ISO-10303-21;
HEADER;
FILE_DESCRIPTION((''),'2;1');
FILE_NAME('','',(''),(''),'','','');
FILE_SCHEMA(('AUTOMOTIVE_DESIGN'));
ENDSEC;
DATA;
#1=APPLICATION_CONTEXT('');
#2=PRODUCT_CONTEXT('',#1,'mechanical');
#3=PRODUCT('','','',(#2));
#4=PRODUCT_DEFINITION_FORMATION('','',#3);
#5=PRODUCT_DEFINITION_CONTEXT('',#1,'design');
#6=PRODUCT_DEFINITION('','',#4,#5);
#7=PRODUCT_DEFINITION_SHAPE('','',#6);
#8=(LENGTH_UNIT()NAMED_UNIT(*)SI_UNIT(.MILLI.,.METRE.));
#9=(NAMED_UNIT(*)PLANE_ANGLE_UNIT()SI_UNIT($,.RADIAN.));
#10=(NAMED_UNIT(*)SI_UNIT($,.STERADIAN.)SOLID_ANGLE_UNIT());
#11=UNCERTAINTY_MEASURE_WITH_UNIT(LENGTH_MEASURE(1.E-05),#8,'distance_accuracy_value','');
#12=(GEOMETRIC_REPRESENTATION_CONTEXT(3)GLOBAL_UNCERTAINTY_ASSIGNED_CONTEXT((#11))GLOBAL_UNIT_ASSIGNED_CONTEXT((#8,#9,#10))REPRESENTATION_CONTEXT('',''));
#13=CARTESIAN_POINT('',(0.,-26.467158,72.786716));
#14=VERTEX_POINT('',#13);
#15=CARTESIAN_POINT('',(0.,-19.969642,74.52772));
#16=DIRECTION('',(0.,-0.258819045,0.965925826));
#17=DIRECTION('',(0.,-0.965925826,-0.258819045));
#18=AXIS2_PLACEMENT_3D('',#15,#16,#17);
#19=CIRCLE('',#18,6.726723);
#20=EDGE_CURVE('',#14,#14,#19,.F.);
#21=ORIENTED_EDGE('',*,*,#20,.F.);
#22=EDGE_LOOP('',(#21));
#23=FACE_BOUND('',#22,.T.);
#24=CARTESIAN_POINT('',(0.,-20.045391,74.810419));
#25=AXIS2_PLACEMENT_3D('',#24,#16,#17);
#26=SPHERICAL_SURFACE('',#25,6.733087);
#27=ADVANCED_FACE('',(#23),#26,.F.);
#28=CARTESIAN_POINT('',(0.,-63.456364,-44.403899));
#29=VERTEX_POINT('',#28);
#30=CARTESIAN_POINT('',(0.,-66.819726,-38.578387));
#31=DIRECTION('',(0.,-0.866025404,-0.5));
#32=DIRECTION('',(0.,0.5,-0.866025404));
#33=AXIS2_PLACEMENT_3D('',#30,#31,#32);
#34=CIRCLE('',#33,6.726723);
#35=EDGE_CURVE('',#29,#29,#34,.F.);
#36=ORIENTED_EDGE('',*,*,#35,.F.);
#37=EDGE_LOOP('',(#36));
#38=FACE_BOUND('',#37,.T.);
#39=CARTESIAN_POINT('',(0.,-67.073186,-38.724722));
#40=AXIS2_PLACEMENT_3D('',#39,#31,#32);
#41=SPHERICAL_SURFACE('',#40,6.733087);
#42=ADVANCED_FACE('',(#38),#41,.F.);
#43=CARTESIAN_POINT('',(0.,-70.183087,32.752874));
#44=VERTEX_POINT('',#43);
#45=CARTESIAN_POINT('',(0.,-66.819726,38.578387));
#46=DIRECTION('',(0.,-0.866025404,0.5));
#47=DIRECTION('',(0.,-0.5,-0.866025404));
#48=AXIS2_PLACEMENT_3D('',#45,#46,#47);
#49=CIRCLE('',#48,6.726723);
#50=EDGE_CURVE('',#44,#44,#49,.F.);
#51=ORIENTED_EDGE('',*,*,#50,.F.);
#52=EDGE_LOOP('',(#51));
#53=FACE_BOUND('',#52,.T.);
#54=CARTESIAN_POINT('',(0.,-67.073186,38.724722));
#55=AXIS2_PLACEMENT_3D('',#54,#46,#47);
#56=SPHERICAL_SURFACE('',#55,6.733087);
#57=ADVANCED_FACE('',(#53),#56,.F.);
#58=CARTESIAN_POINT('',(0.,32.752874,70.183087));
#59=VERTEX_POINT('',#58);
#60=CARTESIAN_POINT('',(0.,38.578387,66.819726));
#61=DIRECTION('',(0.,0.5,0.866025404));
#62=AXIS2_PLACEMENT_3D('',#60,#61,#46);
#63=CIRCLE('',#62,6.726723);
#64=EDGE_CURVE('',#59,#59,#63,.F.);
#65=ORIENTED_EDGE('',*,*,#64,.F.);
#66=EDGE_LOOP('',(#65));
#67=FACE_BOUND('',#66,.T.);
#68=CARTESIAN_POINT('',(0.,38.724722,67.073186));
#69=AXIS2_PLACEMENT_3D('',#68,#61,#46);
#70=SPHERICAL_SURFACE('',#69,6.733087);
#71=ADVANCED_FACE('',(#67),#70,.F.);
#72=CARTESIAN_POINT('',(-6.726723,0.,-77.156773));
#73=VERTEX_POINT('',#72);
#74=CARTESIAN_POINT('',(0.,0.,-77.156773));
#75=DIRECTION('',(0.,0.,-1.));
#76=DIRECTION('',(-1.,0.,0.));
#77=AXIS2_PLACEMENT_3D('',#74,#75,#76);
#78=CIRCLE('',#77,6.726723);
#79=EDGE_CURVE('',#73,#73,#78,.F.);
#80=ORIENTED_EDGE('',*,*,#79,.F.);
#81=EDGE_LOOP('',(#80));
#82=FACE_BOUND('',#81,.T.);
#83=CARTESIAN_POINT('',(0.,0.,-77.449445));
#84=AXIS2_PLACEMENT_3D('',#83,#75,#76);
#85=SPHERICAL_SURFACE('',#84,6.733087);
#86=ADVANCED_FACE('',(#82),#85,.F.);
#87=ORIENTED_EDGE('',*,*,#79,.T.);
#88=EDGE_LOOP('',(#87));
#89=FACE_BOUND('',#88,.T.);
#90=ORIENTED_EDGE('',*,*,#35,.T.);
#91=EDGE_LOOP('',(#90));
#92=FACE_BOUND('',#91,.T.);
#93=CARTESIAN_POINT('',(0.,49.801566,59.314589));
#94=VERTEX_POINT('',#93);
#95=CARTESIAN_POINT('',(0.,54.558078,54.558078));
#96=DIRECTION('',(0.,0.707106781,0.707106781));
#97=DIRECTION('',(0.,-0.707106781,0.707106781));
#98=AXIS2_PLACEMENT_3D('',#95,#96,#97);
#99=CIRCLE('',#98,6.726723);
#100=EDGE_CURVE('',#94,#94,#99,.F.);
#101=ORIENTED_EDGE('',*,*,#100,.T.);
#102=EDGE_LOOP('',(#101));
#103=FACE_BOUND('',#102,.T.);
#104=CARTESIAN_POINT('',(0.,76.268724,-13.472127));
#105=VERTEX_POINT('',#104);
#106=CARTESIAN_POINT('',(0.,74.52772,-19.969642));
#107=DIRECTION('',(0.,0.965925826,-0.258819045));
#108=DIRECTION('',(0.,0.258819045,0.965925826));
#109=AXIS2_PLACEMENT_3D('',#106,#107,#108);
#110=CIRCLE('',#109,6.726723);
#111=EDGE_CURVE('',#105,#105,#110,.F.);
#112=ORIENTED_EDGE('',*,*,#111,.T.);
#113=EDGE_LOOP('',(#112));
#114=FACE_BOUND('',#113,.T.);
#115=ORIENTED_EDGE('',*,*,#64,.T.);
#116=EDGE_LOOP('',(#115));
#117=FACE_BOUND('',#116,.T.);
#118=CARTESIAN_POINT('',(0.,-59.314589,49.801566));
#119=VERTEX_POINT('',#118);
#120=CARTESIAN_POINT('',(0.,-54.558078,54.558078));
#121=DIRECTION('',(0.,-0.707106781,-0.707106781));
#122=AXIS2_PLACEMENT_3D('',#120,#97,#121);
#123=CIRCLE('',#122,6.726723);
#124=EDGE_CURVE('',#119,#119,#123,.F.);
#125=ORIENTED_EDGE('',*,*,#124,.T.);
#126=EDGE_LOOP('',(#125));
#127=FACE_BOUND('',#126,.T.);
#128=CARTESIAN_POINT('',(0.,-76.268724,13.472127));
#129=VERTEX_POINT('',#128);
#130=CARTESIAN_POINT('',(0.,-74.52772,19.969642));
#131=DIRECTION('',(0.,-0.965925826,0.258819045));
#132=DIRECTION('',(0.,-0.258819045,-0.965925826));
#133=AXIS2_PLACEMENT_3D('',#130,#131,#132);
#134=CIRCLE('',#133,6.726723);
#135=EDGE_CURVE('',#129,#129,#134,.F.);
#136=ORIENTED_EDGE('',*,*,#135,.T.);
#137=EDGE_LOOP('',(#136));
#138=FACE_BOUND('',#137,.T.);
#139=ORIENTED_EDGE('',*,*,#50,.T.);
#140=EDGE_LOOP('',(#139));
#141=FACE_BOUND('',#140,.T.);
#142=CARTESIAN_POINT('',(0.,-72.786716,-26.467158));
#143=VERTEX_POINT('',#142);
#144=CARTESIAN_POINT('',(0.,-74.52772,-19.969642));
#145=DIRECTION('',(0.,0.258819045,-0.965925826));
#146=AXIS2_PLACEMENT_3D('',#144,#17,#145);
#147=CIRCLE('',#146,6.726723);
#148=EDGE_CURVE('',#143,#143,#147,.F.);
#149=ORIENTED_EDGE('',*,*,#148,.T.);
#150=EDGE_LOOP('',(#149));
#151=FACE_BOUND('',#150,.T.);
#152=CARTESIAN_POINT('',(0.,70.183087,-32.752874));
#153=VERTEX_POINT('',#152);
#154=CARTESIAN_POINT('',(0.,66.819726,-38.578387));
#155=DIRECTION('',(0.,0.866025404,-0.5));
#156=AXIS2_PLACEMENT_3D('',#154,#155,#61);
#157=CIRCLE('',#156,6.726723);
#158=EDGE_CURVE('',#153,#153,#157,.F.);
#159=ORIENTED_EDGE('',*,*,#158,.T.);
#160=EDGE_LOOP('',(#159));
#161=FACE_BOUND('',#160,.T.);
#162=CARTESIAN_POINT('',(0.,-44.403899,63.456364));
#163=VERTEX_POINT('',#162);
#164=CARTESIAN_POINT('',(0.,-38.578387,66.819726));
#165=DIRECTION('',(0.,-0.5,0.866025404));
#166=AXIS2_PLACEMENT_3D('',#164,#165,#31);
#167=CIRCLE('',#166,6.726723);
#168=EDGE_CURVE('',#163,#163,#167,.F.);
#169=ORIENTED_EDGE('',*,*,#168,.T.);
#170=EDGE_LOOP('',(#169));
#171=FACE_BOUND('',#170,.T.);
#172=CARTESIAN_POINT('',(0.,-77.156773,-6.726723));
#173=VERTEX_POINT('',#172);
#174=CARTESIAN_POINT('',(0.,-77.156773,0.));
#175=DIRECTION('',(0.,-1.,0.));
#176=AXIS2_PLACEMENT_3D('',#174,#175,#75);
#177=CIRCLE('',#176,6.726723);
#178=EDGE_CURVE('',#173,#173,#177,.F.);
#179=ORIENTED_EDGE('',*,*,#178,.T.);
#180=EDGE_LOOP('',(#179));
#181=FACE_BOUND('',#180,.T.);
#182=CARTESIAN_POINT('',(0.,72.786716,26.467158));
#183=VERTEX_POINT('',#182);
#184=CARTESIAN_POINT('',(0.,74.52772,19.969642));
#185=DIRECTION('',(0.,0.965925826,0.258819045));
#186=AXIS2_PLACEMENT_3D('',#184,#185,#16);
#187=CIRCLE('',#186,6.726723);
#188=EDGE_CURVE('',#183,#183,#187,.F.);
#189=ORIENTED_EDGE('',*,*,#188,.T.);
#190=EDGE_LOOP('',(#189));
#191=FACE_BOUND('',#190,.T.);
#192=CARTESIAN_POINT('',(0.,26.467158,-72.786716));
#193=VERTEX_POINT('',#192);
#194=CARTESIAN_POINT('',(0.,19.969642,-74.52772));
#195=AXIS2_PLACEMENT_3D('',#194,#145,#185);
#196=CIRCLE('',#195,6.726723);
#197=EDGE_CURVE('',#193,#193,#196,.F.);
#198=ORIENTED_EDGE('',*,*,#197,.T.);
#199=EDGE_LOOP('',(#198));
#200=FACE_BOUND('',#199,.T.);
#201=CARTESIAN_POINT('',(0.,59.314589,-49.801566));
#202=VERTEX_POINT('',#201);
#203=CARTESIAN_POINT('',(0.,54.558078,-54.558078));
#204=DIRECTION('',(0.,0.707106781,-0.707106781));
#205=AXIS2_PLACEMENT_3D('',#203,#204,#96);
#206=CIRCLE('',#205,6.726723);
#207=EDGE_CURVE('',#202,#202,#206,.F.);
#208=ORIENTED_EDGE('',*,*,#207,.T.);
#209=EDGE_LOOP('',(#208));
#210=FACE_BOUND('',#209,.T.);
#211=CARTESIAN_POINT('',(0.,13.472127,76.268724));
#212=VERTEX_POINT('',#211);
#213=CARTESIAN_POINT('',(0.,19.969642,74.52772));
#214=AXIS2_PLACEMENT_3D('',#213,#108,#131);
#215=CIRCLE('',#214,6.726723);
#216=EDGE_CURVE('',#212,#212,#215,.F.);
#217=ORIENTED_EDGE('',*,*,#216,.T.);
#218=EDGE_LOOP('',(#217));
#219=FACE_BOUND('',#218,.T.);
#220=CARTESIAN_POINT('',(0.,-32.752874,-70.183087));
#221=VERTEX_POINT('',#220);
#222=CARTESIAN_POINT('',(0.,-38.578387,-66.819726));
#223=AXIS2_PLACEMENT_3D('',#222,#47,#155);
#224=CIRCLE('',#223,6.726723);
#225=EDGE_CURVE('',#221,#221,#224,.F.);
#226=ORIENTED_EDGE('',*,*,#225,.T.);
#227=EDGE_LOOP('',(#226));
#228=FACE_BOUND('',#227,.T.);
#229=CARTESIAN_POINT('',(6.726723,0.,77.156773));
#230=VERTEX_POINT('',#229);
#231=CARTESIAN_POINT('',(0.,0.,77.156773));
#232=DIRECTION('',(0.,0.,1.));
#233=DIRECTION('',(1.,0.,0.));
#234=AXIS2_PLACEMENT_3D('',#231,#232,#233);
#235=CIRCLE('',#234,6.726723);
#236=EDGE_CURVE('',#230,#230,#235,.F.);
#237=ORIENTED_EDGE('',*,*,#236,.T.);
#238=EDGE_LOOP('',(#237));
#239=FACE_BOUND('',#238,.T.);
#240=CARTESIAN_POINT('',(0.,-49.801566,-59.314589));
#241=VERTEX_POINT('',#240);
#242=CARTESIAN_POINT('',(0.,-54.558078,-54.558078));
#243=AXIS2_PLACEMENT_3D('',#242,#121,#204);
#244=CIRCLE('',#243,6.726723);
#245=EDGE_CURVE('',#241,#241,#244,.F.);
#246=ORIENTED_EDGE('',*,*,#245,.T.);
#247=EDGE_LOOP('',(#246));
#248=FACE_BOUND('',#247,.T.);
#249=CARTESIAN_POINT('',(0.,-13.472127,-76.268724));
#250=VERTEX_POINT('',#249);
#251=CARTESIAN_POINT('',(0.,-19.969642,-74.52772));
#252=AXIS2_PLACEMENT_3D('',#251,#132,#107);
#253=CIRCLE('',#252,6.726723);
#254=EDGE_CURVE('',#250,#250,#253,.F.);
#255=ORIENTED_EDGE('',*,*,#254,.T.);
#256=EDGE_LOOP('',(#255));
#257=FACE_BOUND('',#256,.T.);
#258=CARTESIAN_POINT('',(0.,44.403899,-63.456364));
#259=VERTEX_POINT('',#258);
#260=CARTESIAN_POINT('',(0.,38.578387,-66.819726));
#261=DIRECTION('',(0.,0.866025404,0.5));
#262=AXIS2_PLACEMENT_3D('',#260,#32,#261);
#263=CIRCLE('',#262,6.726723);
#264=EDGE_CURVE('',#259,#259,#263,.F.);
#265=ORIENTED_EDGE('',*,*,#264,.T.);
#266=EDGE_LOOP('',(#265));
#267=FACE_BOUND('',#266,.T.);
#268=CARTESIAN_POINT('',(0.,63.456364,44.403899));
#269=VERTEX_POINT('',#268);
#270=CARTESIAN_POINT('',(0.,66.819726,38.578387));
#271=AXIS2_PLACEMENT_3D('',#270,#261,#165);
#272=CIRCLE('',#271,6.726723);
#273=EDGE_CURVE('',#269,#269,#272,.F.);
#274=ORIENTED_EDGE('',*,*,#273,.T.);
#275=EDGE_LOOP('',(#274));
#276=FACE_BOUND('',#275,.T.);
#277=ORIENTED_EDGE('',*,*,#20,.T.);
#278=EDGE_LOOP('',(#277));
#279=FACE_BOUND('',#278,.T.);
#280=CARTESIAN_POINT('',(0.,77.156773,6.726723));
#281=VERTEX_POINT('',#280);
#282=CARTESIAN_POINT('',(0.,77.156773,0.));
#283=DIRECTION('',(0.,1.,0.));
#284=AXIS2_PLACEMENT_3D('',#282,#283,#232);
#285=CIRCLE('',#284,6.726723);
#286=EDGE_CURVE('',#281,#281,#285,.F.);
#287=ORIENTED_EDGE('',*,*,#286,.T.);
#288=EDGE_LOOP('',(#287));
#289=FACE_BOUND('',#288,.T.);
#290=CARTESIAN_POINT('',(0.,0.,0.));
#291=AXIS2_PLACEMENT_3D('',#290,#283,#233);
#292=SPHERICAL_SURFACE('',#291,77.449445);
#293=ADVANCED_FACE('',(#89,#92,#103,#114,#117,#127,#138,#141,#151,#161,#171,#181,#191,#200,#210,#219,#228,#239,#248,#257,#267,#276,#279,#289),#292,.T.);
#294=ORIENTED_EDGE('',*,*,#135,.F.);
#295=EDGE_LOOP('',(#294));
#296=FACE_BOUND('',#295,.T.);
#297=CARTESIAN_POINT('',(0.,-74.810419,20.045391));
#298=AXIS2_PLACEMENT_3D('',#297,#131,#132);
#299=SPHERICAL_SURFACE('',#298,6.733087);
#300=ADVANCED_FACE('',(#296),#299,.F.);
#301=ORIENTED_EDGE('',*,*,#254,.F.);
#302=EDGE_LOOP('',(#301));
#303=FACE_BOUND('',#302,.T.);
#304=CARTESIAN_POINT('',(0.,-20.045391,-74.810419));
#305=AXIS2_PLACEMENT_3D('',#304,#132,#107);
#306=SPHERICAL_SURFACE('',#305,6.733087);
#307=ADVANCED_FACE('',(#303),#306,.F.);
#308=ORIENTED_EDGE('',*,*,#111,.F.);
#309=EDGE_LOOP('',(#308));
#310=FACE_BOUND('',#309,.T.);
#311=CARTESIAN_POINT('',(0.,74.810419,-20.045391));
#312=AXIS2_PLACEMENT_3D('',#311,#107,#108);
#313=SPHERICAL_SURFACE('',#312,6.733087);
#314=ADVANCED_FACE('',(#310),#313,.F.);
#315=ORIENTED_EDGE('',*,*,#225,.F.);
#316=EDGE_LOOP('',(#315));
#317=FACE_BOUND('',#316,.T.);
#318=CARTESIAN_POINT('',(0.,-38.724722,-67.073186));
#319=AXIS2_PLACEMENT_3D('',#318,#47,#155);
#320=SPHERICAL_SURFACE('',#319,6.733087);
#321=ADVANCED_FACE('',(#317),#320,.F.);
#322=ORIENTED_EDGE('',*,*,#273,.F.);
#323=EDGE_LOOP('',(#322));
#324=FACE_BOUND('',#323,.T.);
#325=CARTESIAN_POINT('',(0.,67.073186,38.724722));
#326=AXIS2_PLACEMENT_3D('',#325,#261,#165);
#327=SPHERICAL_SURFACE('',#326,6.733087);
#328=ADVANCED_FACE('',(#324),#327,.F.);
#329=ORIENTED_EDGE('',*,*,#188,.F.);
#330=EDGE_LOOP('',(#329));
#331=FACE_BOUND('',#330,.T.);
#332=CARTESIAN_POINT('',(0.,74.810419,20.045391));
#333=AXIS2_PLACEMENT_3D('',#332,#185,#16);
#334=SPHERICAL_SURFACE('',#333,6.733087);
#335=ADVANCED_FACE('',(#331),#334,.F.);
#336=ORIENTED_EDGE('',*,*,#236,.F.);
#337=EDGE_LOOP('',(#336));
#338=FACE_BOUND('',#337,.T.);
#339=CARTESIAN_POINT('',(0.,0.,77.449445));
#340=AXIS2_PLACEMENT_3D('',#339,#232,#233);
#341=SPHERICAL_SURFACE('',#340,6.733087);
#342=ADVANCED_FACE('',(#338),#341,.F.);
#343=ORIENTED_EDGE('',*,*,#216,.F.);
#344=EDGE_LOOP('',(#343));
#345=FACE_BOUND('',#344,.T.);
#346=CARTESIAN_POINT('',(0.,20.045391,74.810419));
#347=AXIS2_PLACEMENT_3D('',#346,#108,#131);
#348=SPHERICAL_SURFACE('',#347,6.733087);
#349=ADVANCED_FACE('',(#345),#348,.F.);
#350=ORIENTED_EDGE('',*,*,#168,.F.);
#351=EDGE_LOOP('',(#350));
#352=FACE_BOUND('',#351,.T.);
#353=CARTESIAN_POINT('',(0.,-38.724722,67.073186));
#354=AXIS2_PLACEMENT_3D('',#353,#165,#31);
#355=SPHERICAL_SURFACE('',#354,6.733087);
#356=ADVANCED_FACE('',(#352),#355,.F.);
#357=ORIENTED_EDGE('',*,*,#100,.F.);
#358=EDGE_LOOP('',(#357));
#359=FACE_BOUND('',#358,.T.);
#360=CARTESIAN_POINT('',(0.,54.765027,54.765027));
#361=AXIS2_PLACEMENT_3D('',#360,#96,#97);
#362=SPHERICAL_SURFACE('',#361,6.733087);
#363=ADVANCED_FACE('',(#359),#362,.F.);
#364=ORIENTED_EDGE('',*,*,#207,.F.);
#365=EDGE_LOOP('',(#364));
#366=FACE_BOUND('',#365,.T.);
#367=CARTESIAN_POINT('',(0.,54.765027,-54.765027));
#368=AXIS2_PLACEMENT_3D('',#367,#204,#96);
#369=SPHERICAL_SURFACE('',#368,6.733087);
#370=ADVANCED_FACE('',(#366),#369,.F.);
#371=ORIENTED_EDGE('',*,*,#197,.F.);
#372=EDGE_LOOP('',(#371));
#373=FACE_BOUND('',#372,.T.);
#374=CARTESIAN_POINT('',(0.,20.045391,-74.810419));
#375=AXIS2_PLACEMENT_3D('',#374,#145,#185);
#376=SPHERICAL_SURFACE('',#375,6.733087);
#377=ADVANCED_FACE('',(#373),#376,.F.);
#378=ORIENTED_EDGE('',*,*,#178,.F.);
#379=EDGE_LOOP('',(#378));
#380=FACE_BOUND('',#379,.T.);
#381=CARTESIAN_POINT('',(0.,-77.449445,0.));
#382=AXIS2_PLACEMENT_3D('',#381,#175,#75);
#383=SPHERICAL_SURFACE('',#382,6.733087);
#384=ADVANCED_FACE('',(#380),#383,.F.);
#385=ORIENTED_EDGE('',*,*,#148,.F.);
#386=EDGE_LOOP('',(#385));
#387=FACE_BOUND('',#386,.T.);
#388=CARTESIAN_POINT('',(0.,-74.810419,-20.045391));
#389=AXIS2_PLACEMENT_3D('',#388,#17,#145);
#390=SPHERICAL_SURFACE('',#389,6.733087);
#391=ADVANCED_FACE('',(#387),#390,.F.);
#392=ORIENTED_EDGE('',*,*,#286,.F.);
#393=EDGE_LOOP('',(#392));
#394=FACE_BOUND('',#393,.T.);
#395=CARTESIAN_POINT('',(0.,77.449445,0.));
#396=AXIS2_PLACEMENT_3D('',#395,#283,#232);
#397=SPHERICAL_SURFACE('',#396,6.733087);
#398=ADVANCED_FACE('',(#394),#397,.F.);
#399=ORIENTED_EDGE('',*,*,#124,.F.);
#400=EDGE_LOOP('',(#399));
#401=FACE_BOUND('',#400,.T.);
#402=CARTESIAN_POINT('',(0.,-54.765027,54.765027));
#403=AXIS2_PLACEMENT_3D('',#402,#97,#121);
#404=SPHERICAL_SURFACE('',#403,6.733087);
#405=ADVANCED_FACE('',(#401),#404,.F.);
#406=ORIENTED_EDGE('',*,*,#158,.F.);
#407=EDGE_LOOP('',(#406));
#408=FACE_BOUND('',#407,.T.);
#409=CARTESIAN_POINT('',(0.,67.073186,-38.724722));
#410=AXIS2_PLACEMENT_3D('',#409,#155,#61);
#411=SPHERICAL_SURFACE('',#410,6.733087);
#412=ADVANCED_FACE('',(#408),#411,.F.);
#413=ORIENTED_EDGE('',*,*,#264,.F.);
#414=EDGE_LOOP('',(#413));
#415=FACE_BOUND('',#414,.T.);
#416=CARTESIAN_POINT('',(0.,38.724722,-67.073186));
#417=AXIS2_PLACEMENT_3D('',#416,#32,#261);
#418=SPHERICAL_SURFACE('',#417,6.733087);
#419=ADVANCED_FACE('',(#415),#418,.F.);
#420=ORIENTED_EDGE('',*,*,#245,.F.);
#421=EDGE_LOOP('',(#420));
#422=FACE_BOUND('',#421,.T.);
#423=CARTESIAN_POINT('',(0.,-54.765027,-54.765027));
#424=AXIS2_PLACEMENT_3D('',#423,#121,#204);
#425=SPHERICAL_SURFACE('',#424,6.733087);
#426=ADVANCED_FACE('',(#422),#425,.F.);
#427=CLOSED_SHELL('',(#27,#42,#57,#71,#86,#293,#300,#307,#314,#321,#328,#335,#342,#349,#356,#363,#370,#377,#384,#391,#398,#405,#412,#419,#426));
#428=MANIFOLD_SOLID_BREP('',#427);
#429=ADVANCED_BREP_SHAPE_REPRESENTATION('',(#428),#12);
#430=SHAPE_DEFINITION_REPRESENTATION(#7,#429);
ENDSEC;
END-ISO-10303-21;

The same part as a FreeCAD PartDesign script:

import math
import FreeCAD as App
import Part
import Sketcher
from FreeCAD import Vector

doc = App.newDocument("Part")
body = doc.addObject("PartDesign::Body", "Body")

# Sketch on XY plane
sketch1 = doc.addObject("Sketcher::SketchObject", "Sketch")
body.addObject(sketch1)
sketch1.AttachmentSupport = (doc.XY_Plane, [""])
sketch1.MapMode = "FlatFace"
sketch1.addGeometry(Part.LineSegment(Vector(0, 77.449445, 0), Vector(0, -77.449445, 0)), False)
sketch1.addGeometry(Part.ArcOfCircle(Part.Circle(Vector(0, 0, 0), Vector(0, 0, 1), 77.449445), math.radians(-90), math.radians(90)), False)
sketch1.addConstraint(Sketcher.Constraint("Coincident", 0, 1, 1, 2))
sketch1.addConstraint(Sketcher.Constraint("Coincident", 1, 1, 0, 2))
sketch1.addConstraint(Sketcher.Constraint("Vertical", 0))
sketch1.addConstraint(Sketcher.Constraint("Coincident", 1, 3, -1, 1))
sketch1.addConstraint(Sketcher.Constraint("PointOnObject", 0, 1, -2))
sketch1.addConstraint(Sketcher.Constraint("Radius", 1, 77.449445))
revolution = doc.addObject("PartDesign::Revolution", "Revolution")
body.addObject(revolution)
revolution.Profile = sketch1
revolution.ReferenceAxis = (sketch1, ["V_Axis"])
revolution.Angle = 360

# Sketch on XZ plane
sketch2 = doc.addObject("Sketcher::SketchObject", "Sketch001")
body.addObject(sketch2)
sketch2.AttachmentSupport = (doc.XZ_Plane, [""])
sketch2.MapMode = "FlatFace"
sketch2.addGeometry(Part.LineSegment(Vector(6.733087, -77.449445, 0), Vector(-6.733087, -77.449445, 0)), False)
sketch2.addGeometry(Part.ArcOfCircle(Part.Circle(Vector(0, -77.449445, 0), Vector(0, 0, 1), 6.733087), math.radians(0), math.radians(180)), False)
sketch2.addGeometry(Part.LineSegment(Vector(-6.733087, -77.449445, 0), Vector(6.733087, -77.449445, 0)), True)  # axis
sketch2.addConstraint(Sketcher.Constraint("Coincident", 0, 1, 1, 1))
sketch2.addConstraint(Sketcher.Constraint("Coincident", 1, 2, 0, 2))
sketch2.addConstraint(Sketcher.Constraint("Horizontal", 0))
sketch2.addConstraint(Sketcher.Constraint("Horizontal", 2))
sketch2.addConstraint(Sketcher.Constraint("Coincident", 2, 1, 1, 2))
sketch2.addConstraint(Sketcher.Constraint("PointOnObject", 1, 3, -2))
sketch2.addConstraint(Sketcher.Constraint("Horizontal", 1, 3, 0, 1))
sketch2.addConstraint(Sketcher.Constraint("Equal", 0, 2))
sketch2.addConstraint(Sketcher.Constraint("Radius", 1, 6.733087))
sketch2.addConstraint(Sketcher.Constraint("DistanceY", 1, 3, -1, 1, 77.449445))
groove = doc.addObject("PartDesign::Groove", "Groove")
body.addObject(groove)
groove.Profile = sketch2
groove.ReferenceAxis = (sketch2, ["Axis0"])
groove.Angle = 360
doc.recompute()

polarpattern = doc.addObject("PartDesign::PolarPattern", "PolarPattern")
body.addObject(polarpattern)
polarpattern.Originals = [groove]
polarpattern.Axis = (doc.X_Axis, [""])
polarpattern.Angle = 360
polarpattern.Occurrences = 24
body.Tip = polarpattern

doc.recompute()
